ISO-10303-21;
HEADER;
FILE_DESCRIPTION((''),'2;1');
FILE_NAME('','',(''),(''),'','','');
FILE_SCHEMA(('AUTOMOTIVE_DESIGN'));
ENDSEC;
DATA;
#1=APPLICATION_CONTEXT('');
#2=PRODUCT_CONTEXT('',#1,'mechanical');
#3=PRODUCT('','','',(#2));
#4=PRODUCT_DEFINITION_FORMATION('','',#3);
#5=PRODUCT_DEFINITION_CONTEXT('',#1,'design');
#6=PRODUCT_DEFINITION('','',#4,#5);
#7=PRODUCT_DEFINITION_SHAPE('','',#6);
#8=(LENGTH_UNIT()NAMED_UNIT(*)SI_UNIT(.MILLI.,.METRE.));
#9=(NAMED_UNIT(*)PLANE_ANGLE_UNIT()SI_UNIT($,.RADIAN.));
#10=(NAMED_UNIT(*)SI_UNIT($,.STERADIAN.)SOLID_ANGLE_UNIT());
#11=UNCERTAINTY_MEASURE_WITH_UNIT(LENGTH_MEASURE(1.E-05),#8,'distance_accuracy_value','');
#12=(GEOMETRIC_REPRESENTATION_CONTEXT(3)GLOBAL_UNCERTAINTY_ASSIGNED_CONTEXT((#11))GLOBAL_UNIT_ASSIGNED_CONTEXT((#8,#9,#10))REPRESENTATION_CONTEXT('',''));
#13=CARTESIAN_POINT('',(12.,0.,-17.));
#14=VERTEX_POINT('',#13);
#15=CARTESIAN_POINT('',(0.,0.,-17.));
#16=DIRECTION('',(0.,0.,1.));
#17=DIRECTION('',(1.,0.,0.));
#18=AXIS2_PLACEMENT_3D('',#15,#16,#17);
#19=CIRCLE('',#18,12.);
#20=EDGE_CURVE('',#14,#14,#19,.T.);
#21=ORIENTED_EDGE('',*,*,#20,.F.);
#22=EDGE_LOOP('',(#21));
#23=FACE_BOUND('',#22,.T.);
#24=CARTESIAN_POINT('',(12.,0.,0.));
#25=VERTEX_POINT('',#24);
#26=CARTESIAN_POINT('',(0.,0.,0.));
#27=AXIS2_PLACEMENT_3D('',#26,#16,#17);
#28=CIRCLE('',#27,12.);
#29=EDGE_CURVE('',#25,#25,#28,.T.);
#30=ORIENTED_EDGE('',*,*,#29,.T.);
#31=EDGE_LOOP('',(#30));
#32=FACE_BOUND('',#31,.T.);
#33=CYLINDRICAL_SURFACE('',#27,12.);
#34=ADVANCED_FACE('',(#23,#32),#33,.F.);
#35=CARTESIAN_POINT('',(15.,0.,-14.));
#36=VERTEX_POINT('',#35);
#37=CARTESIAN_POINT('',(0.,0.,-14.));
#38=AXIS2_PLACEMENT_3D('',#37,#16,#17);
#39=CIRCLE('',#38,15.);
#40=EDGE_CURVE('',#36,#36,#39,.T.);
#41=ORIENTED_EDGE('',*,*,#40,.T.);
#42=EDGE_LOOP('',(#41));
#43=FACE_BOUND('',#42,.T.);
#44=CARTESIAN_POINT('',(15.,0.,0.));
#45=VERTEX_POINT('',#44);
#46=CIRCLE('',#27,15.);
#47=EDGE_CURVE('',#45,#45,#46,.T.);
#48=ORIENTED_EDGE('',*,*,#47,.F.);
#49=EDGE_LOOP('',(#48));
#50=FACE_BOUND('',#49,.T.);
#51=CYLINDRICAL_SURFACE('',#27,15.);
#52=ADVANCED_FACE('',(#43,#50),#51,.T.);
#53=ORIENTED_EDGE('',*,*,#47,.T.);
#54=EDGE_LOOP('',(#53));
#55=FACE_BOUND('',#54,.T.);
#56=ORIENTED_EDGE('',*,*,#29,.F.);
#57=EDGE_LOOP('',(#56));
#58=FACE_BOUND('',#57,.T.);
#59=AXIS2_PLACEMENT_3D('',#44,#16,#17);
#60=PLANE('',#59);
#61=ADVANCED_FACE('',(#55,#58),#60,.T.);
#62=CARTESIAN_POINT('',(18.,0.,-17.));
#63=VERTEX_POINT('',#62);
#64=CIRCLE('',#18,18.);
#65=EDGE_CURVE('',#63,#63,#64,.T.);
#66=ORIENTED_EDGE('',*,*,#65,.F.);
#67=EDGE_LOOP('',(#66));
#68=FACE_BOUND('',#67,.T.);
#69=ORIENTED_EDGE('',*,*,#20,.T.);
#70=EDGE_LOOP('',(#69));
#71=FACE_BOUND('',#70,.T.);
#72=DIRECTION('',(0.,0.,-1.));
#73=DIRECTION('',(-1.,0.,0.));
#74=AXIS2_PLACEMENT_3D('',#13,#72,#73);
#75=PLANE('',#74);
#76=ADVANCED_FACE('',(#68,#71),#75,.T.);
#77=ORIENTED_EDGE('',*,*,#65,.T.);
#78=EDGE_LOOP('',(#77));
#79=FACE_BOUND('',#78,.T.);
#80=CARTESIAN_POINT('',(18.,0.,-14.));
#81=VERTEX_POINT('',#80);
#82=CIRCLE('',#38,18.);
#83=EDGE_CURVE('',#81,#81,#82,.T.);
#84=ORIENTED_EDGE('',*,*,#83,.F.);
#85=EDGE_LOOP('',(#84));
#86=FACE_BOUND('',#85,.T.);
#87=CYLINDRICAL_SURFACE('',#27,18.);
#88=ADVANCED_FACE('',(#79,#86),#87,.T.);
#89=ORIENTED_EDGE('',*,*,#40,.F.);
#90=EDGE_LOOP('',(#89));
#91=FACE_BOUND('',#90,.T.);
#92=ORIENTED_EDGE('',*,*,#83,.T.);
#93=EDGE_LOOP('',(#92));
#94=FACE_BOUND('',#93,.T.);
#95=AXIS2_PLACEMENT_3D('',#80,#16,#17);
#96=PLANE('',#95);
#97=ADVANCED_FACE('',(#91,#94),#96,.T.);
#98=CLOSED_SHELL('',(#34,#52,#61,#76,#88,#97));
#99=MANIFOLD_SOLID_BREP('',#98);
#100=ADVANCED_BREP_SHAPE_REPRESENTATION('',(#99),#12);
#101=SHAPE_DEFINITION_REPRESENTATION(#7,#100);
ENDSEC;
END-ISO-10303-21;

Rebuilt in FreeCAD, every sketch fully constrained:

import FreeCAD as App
import Part
import Sketcher


def add_polygon(sketch, points):
    """Adds a closed chain of lines whose ends are joined by coincident constraints."""
    first, n = sketch.GeometryCount, len(points)
    for a, b in zip(points, points[1:] + points[:1]):
        sketch.addGeometry(Part.LineSegment(App.Vector(*a, 0), App.Vector(*b, 0)), False)
    for i in range(n):
        sketch.addConstraint(Sketcher.Constraint("Coincident", first + i, 2, first + (i + 1) % n, 1))

doc = App.newDocument("Part")
body = doc.addObject("PartDesign::Body", "Body")

# Sketch on XZ plane
sketch1 = body.newObject("Sketcher::SketchObject", "Sketch")
sketch1.AttachmentSupport = (doc.getObject("XZ_Plane"), [""])
sketch1.MapMode = "FlatFace"
add_polygon(sketch1, [(12, -17), (12, 0), (15, 0), (15, -14), (18, -14), (18, -17)])  # lines 0-5
sketch1.addConstraint([
    Sketcher.Constraint("Vertical", 0),
    Sketcher.Constraint("Horizontal", 1),
    Sketcher.Constraint("Vertical", 2),
    Sketcher.Constraint("Horizontal", 3),
    Sketcher.Constraint("Vertical", 4),
    Sketcher.Constraint("Horizontal", 5),
    Sketcher.Constraint("PointOnObject", 0, 2, -1),
    Sketcher.Constraint("Equal", 1, 3),
    Sketcher.Constraint("Equal", 3, 4),
    Sketcher.Constraint("DistanceX", 1, 1, 1, 2, 3.0),
    Sketcher.Constraint("DistanceY", 0, 1, 0, 2, 17.0),
    Sketcher.Constraint("DistanceX", -1, 1, 0, 2, 12.0),
])
revolution = body.newObject("PartDesign::Revolution", "Revolution")
revolution.Profile = sketch1
revolution.ReferenceAxis = (sketch1, ["V_Axis"])
revolution.Angle = 360

doc.recompute()
